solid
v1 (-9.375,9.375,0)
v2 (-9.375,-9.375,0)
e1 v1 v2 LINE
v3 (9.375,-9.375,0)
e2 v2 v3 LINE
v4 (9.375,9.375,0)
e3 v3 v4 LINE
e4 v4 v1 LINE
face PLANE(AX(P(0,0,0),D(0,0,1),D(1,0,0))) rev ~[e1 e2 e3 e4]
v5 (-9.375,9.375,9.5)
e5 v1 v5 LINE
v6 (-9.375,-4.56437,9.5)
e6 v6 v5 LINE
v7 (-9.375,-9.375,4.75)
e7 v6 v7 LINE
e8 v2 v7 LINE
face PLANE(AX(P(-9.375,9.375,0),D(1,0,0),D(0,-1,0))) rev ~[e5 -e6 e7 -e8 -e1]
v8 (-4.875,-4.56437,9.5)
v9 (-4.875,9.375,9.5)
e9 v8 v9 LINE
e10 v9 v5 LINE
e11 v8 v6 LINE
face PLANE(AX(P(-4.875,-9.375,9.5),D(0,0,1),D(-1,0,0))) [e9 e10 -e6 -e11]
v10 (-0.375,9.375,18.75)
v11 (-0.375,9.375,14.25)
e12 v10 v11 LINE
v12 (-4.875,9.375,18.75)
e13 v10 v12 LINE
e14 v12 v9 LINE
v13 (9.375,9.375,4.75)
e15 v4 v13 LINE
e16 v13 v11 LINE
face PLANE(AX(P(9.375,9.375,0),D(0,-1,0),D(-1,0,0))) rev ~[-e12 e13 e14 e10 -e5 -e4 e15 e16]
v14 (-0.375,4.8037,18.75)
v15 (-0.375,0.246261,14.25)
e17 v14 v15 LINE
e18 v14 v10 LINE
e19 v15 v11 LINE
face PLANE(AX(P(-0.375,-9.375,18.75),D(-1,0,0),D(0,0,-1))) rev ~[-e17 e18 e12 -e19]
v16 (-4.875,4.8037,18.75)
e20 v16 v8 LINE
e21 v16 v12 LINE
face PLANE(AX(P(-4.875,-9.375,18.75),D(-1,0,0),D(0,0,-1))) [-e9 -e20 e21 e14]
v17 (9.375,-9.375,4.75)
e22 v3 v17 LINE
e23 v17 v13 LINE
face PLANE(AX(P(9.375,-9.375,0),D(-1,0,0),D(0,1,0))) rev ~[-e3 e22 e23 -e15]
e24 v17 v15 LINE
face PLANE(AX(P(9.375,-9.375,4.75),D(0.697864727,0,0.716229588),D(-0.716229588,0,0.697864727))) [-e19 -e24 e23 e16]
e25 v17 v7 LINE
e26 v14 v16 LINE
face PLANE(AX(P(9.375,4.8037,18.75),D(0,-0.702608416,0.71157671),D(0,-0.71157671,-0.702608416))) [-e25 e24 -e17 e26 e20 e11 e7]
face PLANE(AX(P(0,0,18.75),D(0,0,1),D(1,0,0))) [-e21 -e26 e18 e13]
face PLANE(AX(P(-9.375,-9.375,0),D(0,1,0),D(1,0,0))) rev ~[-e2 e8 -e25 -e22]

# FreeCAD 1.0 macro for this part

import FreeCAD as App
import Part
import Sketcher

V = App.Vector


def add_polygon(sketch, points):
    """Adds a closed chain of lines whose ends are joined by coincident constraints."""
    first, n = sketch.GeometryCount, len(points)
    for a, b in zip(points, points[1:] + points[:1]):
        sketch.addGeometry(Part.LineSegment(App.Vector(*a, 0), App.Vector(*b, 0)), False)
    for i in range(n):
        sketch.addConstraint(Sketcher.Constraint("Coincident", first + i, 2, first + (i + 1) % n, 1))

doc = App.newDocument("Part")
params = doc.addObject("Spreadsheet::Sheet", "Params")
for row, (alias, value) in enumerate([
    ("sketch1_width", "18.75 mm"),
    ("pad1_length", "18.75 mm"),
    ("sketch2_height", "14 mm"),
    ("pocket1_length", "21 mm"),
    ("sketch3_width", "4.5 mm"),
    ("sketch3_height", "9.25 mm"),
    ("sketch3_height2", "14 mm"),
    ("sketch3_width2", "9.75 mm"),
    ("pocket2_length", "27.25 mm"),
], start=1):
    params.set(f"A{row}", alias)
    params.set(f"B{row}", "=" + value)
    params.setAlias(f"B{row}", alias)

body = doc.addObject("PartDesign::Body", "Body")

# Sketch on XY plane
sketch1 = doc.addObject("Sketcher::SketchObject", "Sketch")
body.addObject(sketch1)
sketch1.AttachmentSupport = (doc.XY_Plane, [""])
sketch1.MapMode = "FlatFace"
add_polygon(sketch1, [(-9, 9), (-9, -9), (9, -9), (9, 9)])  # lines 0-3
sketch1.addConstraint([
    Sketcher.Constraint("Vertical", 0),
    Sketcher.Constraint("Horizontal", 1),
    Sketcher.Constraint("Vertical", 2),
    Sketcher.Constraint("Horizontal", 3),
    Sketcher.Constraint("Symmetric", 0, 2, 2, 2, -1, 1),
    Sketcher.Constraint("Equal", 3, 0),
    Sketcher.Constraint("DistanceX", 1, 1, 1, 2, 18.75),
])
sketch1.setExpression("Constraints[10]", "Params.sketch1_width")
pad1 = doc.addObject("PartDesign::Pad", "Pad")
body.addObject(pad1)
pad1.Profile = sketch1
pad1.setExpression("Length", "Params.pad1_length")

# Sketch on YZ plane
sketch2 = doc.addObject("Sketcher::SketchObject", "Sketch001")
body.addObject(sketch2)
sketch2.AttachmentSupport = (doc.YZ_Plane, [""])
sketch2.MapMode = "FlatFace"
sketch2.AttachmentOffset = App.Placement(V(0, 0, 9.375), App.Rotation())
add_polygon(sketch2, [(-9, 19), (-9, 5), (5, 19)])  # lines 0-2
sketch2.addConstraint([
    Sketcher.Constraint("Vertical", 0),
    Sketcher.Constraint("Horizontal", 2),
    Sketcher.Constraint("DistanceY", 0, 2, 0, 1, 14.0),
    Sketcher.Constraint("DistanceY", -1, 1, 0, 2, 4.75),
    Sketcher.Constraint("DistanceX", 2, 2, 2, 1, 14.1787),
    Sketcher.Constraint("DistanceX", 0, 2, -1, 1, 9.375),
])
sketch2.setExpression("Constraints[5]", "Params.sketch2_height")
pocket1 = doc.addObject("PartDesign::Pocket", "Pocket")
body.addObject(pocket1)
pocket1.Profile = sketch2
pocket1.setExpression("Length", "Params.pocket1_length")

# Sketch on XZ plane
sketch3 = doc.addObject("Sketcher::SketchObject", "Sketch002")
body.addObject(sketch3)
sketch3.AttachmentSupport = (doc.XZ_Plane, [""])
sketch3.MapMode = "FlatFace"
sketch3.AttachmentOffset = App.Placement(V(0, 0, 9.375), App.Rotation())
add_polygon(sketch3, [(9.4, 4.8), (9.4, 18.8), (-0.4, 18.8), (-0.4, 14.2)])  # lines 0-3
add_polygon(sketch3, [(-4.9, 9.5), (-4.9, 18.8), (-9.4, 18.8), (-9.4, 9.5)])  # lines 4-7
sketch3.addConstraint([
    Sketcher.Constraint("Vertical", 0),
    Sketcher.Constraint("Horizontal", 1),
    Sketcher.Constraint("Vertical", 2),
    Sketcher.Constraint("Vertical", 4),
    Sketcher.Constraint("Horizontal", 5),
    Sketcher.Constraint("Vertical", 6),
    Sketcher.Constraint("Horizontal", 7),
    Sketcher.Constraint("Symmetric", 0, 2, 5, 2, -2),
    Sketcher.Constraint("Equal", 7, 2),
    Sketcher.Constraint("DistanceX", 5, 2, 5, 1, 4.5),
    Sketcher.Constraint("DistanceY", 4, 1, 4, 2, 9.25),
    Sketcher.Constraint("DistanceX", 4, 2, 1, 2, 4.5),
    Sketcher.Constraint("DistanceY", 0, 1, 0, 2, 14.0),
    Sketcher.Constraint("DistanceY", -1, 1, 3, 2, 4.75),
    Sketcher.Constraint("DistanceX", 1, 2, 1, 1, 9.75),
])
sketch3.setExpression("Constraints[17]", "Params.sketch3_width")
sketch3.setExpression("Constraints[18]", "Params.sketch3_height")
sketch3.setExpression("Constraints[20]", "Params.sketch3_height2")
sketch3.setExpression("Constraints[22]", "Params.sketch3_width2")
pocket2 = doc.addObject("PartDesign::Pocket", "Pocket001")
body.addObject(pocket2)
pocket2.Profile = sketch3
pocket2.setExpression("Length", "Params.pocket2_length")

doc.recompute()
